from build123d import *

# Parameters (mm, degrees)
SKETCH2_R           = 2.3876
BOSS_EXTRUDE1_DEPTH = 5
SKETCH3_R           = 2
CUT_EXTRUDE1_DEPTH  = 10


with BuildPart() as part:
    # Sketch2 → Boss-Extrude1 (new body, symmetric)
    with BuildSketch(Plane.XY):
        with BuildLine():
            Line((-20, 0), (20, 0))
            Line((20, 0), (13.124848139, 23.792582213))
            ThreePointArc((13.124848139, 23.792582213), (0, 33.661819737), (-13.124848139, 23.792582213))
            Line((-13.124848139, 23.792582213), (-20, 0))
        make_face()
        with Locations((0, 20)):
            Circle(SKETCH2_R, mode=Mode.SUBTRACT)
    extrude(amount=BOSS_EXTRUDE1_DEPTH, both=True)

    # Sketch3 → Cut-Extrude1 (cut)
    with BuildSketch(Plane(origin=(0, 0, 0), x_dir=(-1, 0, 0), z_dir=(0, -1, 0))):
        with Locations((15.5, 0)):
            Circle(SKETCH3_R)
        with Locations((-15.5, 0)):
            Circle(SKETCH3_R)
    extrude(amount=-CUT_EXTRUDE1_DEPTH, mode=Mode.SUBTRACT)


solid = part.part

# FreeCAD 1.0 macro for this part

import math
import FreeCAD as App
import Part
import Sketcher

V = App.Vector
Q = App.Units.Quantity

doc = App.newDocument("Part")
body = doc.addObject("PartDesign::Body", "Body")

sketch1 = body.newObject("Sketcher::SketchObject", "Sketch")
sketch1.AttachmentSupport = (doc.getObject("XY_Plane"), [""])
sketch1.MapMode = "FlatFace"
sketch1.addGeometry([
    Part.LineSegment(V(-20, 0, 0), V(20, 0, 0)),
    Part.LineSegment(V(20, 0, 0), V(13.1, 23.8, 0)),
    Part.ArcOfCircle(Part.Circle(V(0, 20, 0), V(0, 0, 1), 13.7), math.radians(16), math.radians(164)),
    Part.LineSegment(V(-13.1, 23.8, 0), V(-20, 0, 0)),
    Part.Circle(V(0, 20, 0), V(0, 0, 1), 2.4),
], False)
sketch1.addConstraint([
    Sketcher.Constraint("Coincident", 0, 2, 1, 1),
    Sketcher.Constraint("Tangent", 1, 2, 2, 1),
    Sketcher.Constraint("Tangent", 2, 2, 3, 1),
    Sketcher.Constraint("Coincident", 3, 2, 0, 1),
    Sketcher.Constraint("Horizontal", 0),
    Sketcher.Constraint("Coincident", 4, 3, 2, 3),
    Sketcher.Constraint("Symmetric", 0, 2, 3, 2, -1, 1),
    Sketcher.Constraint("PointOnObject", 2, 3, -2),
    Sketcher.Constraint("DistanceX", 0, 1, 0, 2, Q("40 mm")),
    Sketcher.Constraint("DistanceY", -1, 1, 2, 3, Q("20 mm")),
    Sketcher.Constraint("Diameter", 4, Q("4.7752 mm")),
    Sketcher.Constraint("Radius", 2, Q("13.66182 mm")),
])
pad1 = body.newObject("PartDesign::Pad", "Pad")
pad1.Profile = sketch1
pad1.Length = 10
pad1.Midplane = True

sketch2 = body.newObject("Sketcher::SketchObject", "Sketch001")
sketch2.AttachmentSupport = (doc.getObject("XZ_Plane"), [""])
sketch2.MapMode = "FlatFace"
sketch2.addGeometry([
    Part.Circle(V(-15.5, 0, 0), V(0, 0, 1), 2),
    Part.Circle(V(15.5, 0, 0), V(0, 0, 1), 2),
], False)
sketch2.addConstraint([
    Sketcher.Constraint("Equal", 0, 1),
    Sketcher.Constraint("Symmetric", 0, 3, 1, 3, -1, 1),
    Sketcher.Constraint("PointOnObject", 0, 3, -1),
    Sketcher.Constraint("Diameter", 0, Q("4 mm")),
    Sketcher.Constraint("DistanceX", 0, 3, 1, 3, Q("31 mm")),
])
pocket1 = body.newObject("PartDesign::Pocket", "Pocket")
pocket1.Profile = sketch2
pocket1.Length = 10

doc.recompute()
